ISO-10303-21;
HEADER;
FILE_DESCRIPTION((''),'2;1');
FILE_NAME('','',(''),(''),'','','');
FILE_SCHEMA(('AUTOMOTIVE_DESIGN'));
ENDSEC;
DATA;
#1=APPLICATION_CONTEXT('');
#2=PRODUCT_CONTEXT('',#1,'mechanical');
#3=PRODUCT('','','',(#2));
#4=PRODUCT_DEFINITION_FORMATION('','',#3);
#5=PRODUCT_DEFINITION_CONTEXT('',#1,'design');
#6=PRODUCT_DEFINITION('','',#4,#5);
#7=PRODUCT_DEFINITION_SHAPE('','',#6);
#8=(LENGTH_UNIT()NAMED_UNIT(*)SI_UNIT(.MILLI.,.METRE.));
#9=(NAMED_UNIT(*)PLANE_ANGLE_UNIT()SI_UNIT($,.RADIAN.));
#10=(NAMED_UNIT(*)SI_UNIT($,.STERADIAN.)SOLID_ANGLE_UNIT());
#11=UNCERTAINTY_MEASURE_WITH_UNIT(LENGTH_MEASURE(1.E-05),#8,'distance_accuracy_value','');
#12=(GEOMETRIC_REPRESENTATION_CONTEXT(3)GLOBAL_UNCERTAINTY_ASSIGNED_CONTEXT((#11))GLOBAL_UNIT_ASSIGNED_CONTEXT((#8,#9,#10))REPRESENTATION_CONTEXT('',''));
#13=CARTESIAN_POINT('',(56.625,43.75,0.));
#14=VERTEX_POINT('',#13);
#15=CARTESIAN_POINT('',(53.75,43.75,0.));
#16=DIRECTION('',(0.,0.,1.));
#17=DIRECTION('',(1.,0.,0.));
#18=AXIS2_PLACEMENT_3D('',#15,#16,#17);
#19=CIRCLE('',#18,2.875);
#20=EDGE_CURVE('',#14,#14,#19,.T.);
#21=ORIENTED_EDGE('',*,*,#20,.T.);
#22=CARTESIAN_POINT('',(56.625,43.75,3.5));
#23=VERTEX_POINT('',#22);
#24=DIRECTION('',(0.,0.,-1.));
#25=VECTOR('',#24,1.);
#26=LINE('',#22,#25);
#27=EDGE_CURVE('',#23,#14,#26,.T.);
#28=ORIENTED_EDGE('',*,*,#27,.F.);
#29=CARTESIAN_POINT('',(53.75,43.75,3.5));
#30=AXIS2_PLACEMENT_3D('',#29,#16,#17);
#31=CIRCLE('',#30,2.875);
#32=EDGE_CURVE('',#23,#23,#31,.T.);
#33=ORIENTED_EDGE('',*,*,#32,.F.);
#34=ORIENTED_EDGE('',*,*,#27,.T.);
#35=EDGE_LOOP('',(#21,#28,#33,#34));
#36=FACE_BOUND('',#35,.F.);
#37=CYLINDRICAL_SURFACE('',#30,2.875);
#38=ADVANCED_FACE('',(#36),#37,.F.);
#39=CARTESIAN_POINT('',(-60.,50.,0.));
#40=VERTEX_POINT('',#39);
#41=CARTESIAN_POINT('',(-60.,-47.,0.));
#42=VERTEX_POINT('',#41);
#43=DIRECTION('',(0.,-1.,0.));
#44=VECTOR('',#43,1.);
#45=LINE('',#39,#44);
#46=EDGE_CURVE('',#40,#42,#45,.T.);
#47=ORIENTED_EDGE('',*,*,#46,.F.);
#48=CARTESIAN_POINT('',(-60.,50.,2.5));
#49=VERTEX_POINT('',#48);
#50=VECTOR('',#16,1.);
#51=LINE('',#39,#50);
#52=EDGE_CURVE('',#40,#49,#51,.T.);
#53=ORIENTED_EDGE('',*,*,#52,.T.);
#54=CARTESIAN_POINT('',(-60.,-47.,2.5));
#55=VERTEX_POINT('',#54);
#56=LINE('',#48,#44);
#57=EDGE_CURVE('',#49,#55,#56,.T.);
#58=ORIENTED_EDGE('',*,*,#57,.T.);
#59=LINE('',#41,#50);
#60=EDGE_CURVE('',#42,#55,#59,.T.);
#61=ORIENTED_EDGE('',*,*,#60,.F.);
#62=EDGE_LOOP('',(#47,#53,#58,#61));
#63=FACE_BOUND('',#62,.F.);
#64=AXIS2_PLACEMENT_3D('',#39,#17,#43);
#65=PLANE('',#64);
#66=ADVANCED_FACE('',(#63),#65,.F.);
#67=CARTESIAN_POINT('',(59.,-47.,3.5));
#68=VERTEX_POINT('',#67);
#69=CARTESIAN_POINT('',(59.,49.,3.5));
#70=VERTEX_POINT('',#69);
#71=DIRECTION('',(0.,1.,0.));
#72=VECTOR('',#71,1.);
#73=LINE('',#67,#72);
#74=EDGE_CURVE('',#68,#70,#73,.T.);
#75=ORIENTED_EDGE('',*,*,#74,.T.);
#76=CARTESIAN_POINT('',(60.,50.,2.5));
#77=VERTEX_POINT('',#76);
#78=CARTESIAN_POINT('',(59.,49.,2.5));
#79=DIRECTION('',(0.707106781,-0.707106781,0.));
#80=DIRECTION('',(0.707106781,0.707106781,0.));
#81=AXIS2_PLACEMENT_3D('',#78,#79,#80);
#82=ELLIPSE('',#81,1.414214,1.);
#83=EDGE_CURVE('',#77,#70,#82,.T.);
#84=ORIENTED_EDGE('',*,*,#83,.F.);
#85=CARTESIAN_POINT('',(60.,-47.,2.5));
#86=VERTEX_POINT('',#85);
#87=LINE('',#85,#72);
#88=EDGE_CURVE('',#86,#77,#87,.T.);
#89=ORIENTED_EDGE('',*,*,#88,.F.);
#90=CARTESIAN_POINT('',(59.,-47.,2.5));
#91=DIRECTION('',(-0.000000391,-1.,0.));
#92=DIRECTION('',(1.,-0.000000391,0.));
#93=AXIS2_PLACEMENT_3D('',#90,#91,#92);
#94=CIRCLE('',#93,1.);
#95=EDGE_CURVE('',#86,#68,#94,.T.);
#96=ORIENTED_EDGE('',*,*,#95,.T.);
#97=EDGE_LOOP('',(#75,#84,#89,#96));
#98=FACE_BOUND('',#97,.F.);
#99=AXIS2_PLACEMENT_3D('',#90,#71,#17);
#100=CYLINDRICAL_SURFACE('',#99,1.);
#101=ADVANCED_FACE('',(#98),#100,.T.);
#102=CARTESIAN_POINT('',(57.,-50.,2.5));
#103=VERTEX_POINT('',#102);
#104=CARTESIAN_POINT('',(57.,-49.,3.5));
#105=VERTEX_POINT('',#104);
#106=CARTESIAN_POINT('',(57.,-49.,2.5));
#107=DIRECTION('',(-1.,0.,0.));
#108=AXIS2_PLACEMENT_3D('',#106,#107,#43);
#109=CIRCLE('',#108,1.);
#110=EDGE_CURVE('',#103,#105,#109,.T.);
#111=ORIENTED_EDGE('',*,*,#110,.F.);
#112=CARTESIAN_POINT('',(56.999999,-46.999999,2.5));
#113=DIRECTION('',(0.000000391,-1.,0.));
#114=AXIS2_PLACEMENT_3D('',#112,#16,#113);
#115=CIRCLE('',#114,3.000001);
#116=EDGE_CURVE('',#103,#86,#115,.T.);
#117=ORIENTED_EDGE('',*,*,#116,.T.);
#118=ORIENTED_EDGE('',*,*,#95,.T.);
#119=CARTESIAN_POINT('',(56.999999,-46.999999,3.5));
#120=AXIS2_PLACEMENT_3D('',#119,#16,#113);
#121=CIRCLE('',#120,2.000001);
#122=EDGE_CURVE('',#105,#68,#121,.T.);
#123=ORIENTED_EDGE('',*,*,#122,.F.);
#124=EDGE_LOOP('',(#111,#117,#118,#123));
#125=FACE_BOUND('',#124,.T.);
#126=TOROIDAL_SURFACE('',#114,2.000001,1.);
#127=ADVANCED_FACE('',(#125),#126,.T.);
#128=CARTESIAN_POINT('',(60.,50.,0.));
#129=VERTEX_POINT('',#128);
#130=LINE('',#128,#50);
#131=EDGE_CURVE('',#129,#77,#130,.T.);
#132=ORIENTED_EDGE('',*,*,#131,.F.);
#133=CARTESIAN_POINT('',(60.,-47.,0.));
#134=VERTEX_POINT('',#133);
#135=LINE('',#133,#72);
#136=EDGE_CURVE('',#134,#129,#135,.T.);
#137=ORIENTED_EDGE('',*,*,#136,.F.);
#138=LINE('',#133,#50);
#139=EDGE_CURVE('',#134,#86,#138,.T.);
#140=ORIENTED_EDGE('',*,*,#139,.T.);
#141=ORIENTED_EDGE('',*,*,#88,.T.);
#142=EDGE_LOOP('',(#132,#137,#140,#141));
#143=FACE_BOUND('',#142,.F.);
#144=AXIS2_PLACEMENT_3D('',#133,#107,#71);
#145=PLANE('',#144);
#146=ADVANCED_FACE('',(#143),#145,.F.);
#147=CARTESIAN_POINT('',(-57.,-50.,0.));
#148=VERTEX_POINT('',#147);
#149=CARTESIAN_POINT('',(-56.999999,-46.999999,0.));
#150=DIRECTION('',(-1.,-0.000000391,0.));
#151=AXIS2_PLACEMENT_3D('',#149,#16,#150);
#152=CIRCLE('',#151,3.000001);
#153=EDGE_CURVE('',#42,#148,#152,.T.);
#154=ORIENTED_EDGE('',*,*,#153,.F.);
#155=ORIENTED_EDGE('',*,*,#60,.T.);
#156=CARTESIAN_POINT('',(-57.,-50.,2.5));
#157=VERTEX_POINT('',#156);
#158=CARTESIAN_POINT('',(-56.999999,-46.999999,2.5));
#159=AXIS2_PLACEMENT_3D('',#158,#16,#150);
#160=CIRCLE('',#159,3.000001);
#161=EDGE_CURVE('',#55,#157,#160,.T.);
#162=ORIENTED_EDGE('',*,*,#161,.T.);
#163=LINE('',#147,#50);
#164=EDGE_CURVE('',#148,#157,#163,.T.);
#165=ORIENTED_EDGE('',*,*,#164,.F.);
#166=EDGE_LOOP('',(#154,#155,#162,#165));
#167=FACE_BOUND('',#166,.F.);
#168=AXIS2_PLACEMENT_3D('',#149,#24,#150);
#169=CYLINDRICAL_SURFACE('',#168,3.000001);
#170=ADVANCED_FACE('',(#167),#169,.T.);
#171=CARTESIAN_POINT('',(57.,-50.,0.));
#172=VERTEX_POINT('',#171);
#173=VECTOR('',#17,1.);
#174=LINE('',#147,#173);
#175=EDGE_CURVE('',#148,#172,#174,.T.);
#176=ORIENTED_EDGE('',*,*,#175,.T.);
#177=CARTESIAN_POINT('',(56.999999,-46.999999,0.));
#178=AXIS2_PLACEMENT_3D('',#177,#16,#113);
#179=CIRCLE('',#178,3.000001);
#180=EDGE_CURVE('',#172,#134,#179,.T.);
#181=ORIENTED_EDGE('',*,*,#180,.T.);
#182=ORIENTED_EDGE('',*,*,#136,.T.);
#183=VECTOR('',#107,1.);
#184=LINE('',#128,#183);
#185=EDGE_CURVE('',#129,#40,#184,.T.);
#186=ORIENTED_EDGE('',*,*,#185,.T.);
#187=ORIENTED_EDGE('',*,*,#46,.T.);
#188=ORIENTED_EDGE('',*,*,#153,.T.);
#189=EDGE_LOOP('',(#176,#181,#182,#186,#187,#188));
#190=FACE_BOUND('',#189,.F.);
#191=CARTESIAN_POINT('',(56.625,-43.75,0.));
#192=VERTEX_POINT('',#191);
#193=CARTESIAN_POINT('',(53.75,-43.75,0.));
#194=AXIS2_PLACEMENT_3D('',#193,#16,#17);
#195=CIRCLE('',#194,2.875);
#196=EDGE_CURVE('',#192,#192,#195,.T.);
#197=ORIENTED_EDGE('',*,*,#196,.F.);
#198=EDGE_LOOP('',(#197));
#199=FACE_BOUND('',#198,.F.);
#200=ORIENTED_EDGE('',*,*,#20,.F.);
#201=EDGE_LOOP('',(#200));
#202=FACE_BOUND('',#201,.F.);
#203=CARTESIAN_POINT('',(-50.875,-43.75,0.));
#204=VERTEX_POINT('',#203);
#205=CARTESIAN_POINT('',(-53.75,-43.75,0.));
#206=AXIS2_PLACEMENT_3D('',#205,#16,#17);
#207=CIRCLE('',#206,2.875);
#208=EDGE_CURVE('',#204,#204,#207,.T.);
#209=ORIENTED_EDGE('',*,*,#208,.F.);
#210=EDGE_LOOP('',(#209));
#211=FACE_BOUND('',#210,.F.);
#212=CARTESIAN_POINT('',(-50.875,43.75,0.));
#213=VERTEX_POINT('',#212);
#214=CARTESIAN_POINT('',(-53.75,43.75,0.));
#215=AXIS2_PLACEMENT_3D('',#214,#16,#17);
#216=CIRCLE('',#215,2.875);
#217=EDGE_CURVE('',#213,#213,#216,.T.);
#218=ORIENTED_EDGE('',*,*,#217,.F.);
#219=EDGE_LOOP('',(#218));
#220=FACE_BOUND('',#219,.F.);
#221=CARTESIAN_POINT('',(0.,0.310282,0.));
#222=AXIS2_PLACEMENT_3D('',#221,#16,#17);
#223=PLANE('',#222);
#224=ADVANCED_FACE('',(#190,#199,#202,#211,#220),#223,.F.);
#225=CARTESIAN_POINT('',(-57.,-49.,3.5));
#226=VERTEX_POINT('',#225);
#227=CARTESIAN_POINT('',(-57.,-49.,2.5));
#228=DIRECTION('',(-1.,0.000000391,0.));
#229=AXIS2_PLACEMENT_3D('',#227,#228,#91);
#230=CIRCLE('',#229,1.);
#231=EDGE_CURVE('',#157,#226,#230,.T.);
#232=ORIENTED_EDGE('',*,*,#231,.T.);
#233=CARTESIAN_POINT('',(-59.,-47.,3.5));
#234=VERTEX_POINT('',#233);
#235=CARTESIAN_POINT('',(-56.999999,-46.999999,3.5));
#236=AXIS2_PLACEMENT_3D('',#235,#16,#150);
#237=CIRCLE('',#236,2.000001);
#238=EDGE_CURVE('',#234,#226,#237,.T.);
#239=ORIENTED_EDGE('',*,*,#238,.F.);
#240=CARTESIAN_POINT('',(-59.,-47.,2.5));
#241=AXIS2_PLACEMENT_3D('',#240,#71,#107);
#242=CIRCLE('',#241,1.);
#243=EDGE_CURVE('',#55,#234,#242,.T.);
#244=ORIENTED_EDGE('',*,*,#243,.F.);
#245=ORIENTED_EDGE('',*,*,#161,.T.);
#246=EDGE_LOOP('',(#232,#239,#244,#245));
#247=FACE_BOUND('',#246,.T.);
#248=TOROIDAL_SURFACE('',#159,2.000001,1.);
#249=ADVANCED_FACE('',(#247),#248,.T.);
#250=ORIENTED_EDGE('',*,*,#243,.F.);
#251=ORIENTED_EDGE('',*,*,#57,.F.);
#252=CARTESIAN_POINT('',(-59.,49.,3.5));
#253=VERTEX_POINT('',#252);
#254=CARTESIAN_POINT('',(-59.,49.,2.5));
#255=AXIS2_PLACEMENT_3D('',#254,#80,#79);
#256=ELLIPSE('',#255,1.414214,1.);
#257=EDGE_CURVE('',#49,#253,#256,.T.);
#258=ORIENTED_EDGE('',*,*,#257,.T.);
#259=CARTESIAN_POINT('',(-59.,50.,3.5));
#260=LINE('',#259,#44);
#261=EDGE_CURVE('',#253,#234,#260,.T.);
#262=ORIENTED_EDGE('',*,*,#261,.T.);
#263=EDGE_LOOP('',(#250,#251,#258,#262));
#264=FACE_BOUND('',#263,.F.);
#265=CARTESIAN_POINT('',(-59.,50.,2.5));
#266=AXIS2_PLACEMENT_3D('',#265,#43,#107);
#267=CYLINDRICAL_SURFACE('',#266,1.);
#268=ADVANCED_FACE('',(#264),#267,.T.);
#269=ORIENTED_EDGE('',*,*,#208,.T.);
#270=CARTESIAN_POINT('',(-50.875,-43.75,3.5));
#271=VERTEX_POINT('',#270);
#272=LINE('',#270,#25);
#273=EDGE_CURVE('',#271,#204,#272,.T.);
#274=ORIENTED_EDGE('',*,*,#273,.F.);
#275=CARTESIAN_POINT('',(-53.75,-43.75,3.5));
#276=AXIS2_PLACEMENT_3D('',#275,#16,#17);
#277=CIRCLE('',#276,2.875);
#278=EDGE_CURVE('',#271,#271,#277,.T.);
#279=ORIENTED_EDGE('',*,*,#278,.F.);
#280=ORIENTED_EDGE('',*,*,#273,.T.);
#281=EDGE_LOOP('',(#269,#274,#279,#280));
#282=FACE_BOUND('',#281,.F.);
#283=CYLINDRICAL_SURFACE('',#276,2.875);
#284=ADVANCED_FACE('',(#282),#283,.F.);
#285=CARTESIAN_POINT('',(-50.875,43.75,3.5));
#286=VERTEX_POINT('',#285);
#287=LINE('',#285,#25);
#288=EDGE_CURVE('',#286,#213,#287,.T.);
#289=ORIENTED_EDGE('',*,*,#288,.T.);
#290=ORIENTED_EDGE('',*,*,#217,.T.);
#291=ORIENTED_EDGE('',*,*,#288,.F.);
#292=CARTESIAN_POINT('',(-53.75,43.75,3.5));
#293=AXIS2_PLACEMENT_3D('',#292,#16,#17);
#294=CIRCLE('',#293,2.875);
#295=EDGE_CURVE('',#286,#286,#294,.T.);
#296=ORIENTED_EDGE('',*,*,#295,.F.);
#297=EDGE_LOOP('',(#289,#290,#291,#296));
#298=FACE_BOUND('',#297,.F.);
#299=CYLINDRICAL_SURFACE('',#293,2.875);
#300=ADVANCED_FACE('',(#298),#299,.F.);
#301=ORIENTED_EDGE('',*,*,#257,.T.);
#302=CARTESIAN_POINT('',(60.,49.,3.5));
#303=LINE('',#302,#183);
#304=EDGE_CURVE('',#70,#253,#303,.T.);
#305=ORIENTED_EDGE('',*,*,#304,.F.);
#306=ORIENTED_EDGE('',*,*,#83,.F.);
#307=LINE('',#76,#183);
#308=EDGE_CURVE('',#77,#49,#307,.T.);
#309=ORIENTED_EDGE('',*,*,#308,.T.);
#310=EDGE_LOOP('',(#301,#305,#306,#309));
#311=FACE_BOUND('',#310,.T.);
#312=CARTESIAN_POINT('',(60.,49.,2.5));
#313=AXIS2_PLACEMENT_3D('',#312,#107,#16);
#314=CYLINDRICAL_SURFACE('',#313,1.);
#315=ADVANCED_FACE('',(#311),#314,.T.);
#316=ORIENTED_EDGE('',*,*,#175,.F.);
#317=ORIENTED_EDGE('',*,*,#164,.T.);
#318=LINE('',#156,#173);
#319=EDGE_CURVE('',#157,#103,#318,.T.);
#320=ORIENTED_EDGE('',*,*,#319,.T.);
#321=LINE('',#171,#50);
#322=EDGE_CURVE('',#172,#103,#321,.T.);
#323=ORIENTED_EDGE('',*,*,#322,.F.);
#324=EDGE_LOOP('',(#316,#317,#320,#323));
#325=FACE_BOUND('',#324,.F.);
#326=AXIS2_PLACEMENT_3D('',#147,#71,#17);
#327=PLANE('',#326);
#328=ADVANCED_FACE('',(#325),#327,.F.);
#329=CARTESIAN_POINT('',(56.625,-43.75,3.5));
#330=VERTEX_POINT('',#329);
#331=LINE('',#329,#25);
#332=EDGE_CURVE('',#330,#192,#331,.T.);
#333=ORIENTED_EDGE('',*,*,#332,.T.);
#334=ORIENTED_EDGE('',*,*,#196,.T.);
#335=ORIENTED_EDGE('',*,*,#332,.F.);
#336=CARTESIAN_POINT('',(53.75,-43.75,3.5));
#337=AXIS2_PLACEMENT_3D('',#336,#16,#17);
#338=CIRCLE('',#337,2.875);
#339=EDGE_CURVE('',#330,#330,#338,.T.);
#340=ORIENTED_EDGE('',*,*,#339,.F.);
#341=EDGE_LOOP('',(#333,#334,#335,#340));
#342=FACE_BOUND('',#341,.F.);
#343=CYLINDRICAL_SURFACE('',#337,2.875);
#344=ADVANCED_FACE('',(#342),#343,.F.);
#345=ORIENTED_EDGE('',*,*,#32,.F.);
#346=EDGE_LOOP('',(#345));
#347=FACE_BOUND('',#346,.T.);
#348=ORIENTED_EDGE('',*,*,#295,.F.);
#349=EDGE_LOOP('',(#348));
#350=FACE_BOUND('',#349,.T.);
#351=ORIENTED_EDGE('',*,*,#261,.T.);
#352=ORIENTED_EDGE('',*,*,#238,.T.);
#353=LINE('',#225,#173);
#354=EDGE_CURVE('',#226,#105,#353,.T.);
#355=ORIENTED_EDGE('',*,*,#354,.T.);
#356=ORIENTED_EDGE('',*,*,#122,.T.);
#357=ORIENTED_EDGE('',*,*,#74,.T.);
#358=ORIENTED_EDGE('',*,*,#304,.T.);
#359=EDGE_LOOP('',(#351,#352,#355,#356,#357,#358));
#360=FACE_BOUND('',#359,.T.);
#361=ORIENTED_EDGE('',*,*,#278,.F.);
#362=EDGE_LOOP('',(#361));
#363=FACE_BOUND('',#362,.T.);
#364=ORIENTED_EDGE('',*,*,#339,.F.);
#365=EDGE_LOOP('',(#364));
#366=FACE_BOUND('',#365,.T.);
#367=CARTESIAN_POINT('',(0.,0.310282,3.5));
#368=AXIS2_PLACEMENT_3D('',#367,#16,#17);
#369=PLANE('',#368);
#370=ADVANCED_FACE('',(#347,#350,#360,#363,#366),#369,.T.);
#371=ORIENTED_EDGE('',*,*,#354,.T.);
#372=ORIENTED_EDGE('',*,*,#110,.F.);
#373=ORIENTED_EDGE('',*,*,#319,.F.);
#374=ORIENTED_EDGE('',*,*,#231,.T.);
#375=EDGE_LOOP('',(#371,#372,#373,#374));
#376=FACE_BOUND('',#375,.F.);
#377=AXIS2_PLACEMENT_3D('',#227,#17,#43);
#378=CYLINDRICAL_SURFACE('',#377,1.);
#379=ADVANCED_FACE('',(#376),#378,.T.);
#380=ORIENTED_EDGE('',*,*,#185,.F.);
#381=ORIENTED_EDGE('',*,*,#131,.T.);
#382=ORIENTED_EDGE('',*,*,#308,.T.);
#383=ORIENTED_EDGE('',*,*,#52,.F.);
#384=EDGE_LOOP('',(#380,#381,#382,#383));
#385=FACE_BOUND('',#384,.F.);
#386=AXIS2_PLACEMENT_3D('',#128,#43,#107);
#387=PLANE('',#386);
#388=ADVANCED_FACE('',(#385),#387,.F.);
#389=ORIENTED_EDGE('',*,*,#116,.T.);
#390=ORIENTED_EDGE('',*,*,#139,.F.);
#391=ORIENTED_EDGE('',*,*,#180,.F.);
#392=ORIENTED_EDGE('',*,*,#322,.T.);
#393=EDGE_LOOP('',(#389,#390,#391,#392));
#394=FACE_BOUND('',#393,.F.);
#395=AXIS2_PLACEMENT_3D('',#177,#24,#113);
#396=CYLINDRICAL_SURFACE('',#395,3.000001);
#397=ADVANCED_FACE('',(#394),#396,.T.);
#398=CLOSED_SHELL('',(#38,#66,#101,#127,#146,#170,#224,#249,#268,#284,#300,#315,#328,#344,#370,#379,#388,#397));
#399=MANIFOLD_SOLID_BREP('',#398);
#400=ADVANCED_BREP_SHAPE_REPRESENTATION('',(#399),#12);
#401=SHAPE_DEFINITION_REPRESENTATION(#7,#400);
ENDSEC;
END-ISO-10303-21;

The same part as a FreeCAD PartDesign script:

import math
import FreeCAD as App
import Part
import Sketcher

V = App.Vector


def edges_at(feature, points):
    """Names of the edges that pass closest to the given points."""
    edges = feature.Shape.Edges
    near = lambda p: min(range(len(edges)), key=lambda i: edges[i].distToShape(Part.Vertex(*p))[0])
    return sorted({f"Edge{near(p) + 1}" for p in points})

doc = App.newDocument("Part")
params = doc.addObject("Spreadsheet::Sheet", "Params")
for row, (alias, value) in enumerate([
    ("sketch1_radius", "3.000001 mm"),
    ("sketch1_width", "114 mm"),
    ("sketch1_height", "97 mm"),
    ("pad1_length", "3.5 mm"),
    ("sketch2_diameter", "5.75 mm"),
    ("fillet_radius", "1 mm"),
], start=1):
    params.set(f"A{row}", alias)
    params.set(f"B{row}", "=" + value)
    params.setAlias(f"B{row}", alias)

body = doc.addObject("PartDesign::Body", "Body")

# Sketch on XY plane
sketch1 = doc.addObject("Sketcher::SketchObject", "Sketch")
body.addObject(sketch1)
sketch1.AttachmentSupport = (doc.XY_Plane, [""])
sketch1.MapMode = "FlatFace"
sketch1.addGeometry(Part.LineSegment(V(-57, -50, 0), V(57, -50, 0)), False)
sketch1.addGeometry(Part.ArcOfCircle(Part.Circle(V(57, -47, 0), V(0, 0, 1), 3), math.radians(-90), math.radians(0)), False)
sketch1.addGeometry(Part.LineSegment(V(60, -47, 0), V(60, 50, 0)), False)
sketch1.addGeometry(Part.LineSegment(V(60, 50, 0), V(-60, 50, 0)), False)
sketch1.addGeometry(Part.LineSegment(V(-60, 50, 0), V(-60, -47, 0)), False)
sketch1.addGeometry(Part.ArcOfCircle(Part.Circle(V(-57, -47, 0), V(0, 0, 1), 3), math.radians(-180), math.radians(-90)), False)
sketch1.addConstraint(Sketcher.Constraint("Tangent", 0, 2, 1, 1))
sketch1.addConstraint(Sketcher.Constraint("Tangent", 1, 2, 2, 1))
sketch1.addConstraint(Sketcher.Constraint("Coincident", 2, 2, 3, 1))
sketch1.addConstraint(Sketcher.Constraint("Coincident", 3, 2, 4, 1))
sketch1.addConstraint(Sketcher.Constraint("Tangent", 4, 2, 5, 1))
sketch1.addConstraint(Sketcher.Constraint("Tangent", 5, 2, 0, 1))
sketch1.addConstraint(Sketcher.Constraint("Horizontal", 0))
sketch1.addConstraint(Sketcher.Constraint("Vertical", 2))
sketch1.addConstraint(Sketcher.Constraint("Horizontal", 3))
sketch1.addConstraint(Sketcher.Constraint("Vertical", 4))
sketch1.addConstraint(Sketcher.Constraint("Equal", 1, 5))
sketch1.addConstraint(Sketcher.Constraint("Radius", 1, 3.000001))
sketch1.addConstraint(Sketcher.Constraint("DistanceX", 0, 1, 0, 2, 114.0))
sketch1.addConstraint(Sketcher.Constraint("DistanceY", 2, 1, 2, 2, 97.0))
sketch1.addConstraint(Sketcher.Constraint("DistanceX", -1, 1, 1, 3, 56.999999))
sketch1.addConstraint(Sketcher.Constraint("DistanceY", 1, 3, -1, 1, 46.999999))
sketch1.setExpression("Constraints[11]", "Params.sketch1_radius")
sketch1.setExpression("Constraints[12]", "Params.sketch1_width")
sketch1.setExpression("Constraints[13]", "Params.sketch1_height")
pad1 = doc.addObject("PartDesign::Pad", "Pad")
body.addObject(pad1)
pad1.Profile = sketch1
pad1.setExpression("Length", "Params.pad1_length")

# Sketch on XY plane
sketch2 = doc.addObject("Sketcher::SketchObject", "Sketch001")
body.addObject(sketch2)
sketch2.AttachmentSupport = (doc.XY_Plane, [""])
sketch2.MapMode = "FlatFace"
sketch2.AttachmentOffset = App.Placement(V(0, 0, 3.5), App.Rotation())
sketch2.addGeometry(Part.Circle(V(-53.8, 43.8, 0), V(0, 0, 1), 2.9), False)
sketch2.addGeometry(Part.Circle(V(53.8, 43.8, 0), V(0, 0, 1), 2.9), False)
sketch2.addGeometry(Part.Circle(V(-53.8, -43.8, 0), V(0, 0, 1), 2.9), False)
sketch2.addGeometry(Part.Circle(V(53.8, -43.8, 0), V(0, 0, 1), 2.9), False)
sketch2.addConstraint(Sketcher.Constraint("Equal", 0, 1))
sketch2.addConstraint(Sketcher.Constraint("Equal", 1, 2))
sketch2.addConstraint(Sketcher.Constraint("Equal", 2, 3))
sketch2.addConstraint(Sketcher.Constraint("Symmetric", 1, 3, 2, 3, -1, 1))
sketch2.addConstraint(Sketcher.Constraint("Symmetric", 0, 3, 3, 3, -1, 1))
sketch2.addConstraint(Sketcher.Constraint("Symmetric", 0, 3, 1, 3, -2))
sketch2.addConstraint(Sketcher.Constraint("Diameter", 0, 5.75))
sketch2.addConstraint(Sketcher.Constraint("DistanceX", 0, 3, 1, 3, 107.5))
sketch2.addConstraint(Sketcher.Constraint("DistanceY", 2, 3, 0, 3, 87.5))
sketch2.setExpression("Constraints[6]", "Params.sketch2_diameter")
pocket1 = doc.addObject("PartDesign::Pocket", "Pocket")
body.addObject(pocket1)
pocket1.Profile = sketch2
pocket1.Type = "ThroughAll"
doc.recompute()

fillet = doc.addObject("PartDesign::Fillet", "Fillet")
body.addObject(fillet)
fillet.Base = (pocket1, edges_at(pocket1, [
    (0, -50, 3.5),
    (-59.121, -49.121, 3.5),
    (-60, 1.5, 3.5),
    (0, 50, 3.5),
    (60, 1.5, 3.5),
    (59.121, -49.121, 3.5),
]))
fillet.setExpression("Radius", "Params.fillet_radius")

doc.recompute()
